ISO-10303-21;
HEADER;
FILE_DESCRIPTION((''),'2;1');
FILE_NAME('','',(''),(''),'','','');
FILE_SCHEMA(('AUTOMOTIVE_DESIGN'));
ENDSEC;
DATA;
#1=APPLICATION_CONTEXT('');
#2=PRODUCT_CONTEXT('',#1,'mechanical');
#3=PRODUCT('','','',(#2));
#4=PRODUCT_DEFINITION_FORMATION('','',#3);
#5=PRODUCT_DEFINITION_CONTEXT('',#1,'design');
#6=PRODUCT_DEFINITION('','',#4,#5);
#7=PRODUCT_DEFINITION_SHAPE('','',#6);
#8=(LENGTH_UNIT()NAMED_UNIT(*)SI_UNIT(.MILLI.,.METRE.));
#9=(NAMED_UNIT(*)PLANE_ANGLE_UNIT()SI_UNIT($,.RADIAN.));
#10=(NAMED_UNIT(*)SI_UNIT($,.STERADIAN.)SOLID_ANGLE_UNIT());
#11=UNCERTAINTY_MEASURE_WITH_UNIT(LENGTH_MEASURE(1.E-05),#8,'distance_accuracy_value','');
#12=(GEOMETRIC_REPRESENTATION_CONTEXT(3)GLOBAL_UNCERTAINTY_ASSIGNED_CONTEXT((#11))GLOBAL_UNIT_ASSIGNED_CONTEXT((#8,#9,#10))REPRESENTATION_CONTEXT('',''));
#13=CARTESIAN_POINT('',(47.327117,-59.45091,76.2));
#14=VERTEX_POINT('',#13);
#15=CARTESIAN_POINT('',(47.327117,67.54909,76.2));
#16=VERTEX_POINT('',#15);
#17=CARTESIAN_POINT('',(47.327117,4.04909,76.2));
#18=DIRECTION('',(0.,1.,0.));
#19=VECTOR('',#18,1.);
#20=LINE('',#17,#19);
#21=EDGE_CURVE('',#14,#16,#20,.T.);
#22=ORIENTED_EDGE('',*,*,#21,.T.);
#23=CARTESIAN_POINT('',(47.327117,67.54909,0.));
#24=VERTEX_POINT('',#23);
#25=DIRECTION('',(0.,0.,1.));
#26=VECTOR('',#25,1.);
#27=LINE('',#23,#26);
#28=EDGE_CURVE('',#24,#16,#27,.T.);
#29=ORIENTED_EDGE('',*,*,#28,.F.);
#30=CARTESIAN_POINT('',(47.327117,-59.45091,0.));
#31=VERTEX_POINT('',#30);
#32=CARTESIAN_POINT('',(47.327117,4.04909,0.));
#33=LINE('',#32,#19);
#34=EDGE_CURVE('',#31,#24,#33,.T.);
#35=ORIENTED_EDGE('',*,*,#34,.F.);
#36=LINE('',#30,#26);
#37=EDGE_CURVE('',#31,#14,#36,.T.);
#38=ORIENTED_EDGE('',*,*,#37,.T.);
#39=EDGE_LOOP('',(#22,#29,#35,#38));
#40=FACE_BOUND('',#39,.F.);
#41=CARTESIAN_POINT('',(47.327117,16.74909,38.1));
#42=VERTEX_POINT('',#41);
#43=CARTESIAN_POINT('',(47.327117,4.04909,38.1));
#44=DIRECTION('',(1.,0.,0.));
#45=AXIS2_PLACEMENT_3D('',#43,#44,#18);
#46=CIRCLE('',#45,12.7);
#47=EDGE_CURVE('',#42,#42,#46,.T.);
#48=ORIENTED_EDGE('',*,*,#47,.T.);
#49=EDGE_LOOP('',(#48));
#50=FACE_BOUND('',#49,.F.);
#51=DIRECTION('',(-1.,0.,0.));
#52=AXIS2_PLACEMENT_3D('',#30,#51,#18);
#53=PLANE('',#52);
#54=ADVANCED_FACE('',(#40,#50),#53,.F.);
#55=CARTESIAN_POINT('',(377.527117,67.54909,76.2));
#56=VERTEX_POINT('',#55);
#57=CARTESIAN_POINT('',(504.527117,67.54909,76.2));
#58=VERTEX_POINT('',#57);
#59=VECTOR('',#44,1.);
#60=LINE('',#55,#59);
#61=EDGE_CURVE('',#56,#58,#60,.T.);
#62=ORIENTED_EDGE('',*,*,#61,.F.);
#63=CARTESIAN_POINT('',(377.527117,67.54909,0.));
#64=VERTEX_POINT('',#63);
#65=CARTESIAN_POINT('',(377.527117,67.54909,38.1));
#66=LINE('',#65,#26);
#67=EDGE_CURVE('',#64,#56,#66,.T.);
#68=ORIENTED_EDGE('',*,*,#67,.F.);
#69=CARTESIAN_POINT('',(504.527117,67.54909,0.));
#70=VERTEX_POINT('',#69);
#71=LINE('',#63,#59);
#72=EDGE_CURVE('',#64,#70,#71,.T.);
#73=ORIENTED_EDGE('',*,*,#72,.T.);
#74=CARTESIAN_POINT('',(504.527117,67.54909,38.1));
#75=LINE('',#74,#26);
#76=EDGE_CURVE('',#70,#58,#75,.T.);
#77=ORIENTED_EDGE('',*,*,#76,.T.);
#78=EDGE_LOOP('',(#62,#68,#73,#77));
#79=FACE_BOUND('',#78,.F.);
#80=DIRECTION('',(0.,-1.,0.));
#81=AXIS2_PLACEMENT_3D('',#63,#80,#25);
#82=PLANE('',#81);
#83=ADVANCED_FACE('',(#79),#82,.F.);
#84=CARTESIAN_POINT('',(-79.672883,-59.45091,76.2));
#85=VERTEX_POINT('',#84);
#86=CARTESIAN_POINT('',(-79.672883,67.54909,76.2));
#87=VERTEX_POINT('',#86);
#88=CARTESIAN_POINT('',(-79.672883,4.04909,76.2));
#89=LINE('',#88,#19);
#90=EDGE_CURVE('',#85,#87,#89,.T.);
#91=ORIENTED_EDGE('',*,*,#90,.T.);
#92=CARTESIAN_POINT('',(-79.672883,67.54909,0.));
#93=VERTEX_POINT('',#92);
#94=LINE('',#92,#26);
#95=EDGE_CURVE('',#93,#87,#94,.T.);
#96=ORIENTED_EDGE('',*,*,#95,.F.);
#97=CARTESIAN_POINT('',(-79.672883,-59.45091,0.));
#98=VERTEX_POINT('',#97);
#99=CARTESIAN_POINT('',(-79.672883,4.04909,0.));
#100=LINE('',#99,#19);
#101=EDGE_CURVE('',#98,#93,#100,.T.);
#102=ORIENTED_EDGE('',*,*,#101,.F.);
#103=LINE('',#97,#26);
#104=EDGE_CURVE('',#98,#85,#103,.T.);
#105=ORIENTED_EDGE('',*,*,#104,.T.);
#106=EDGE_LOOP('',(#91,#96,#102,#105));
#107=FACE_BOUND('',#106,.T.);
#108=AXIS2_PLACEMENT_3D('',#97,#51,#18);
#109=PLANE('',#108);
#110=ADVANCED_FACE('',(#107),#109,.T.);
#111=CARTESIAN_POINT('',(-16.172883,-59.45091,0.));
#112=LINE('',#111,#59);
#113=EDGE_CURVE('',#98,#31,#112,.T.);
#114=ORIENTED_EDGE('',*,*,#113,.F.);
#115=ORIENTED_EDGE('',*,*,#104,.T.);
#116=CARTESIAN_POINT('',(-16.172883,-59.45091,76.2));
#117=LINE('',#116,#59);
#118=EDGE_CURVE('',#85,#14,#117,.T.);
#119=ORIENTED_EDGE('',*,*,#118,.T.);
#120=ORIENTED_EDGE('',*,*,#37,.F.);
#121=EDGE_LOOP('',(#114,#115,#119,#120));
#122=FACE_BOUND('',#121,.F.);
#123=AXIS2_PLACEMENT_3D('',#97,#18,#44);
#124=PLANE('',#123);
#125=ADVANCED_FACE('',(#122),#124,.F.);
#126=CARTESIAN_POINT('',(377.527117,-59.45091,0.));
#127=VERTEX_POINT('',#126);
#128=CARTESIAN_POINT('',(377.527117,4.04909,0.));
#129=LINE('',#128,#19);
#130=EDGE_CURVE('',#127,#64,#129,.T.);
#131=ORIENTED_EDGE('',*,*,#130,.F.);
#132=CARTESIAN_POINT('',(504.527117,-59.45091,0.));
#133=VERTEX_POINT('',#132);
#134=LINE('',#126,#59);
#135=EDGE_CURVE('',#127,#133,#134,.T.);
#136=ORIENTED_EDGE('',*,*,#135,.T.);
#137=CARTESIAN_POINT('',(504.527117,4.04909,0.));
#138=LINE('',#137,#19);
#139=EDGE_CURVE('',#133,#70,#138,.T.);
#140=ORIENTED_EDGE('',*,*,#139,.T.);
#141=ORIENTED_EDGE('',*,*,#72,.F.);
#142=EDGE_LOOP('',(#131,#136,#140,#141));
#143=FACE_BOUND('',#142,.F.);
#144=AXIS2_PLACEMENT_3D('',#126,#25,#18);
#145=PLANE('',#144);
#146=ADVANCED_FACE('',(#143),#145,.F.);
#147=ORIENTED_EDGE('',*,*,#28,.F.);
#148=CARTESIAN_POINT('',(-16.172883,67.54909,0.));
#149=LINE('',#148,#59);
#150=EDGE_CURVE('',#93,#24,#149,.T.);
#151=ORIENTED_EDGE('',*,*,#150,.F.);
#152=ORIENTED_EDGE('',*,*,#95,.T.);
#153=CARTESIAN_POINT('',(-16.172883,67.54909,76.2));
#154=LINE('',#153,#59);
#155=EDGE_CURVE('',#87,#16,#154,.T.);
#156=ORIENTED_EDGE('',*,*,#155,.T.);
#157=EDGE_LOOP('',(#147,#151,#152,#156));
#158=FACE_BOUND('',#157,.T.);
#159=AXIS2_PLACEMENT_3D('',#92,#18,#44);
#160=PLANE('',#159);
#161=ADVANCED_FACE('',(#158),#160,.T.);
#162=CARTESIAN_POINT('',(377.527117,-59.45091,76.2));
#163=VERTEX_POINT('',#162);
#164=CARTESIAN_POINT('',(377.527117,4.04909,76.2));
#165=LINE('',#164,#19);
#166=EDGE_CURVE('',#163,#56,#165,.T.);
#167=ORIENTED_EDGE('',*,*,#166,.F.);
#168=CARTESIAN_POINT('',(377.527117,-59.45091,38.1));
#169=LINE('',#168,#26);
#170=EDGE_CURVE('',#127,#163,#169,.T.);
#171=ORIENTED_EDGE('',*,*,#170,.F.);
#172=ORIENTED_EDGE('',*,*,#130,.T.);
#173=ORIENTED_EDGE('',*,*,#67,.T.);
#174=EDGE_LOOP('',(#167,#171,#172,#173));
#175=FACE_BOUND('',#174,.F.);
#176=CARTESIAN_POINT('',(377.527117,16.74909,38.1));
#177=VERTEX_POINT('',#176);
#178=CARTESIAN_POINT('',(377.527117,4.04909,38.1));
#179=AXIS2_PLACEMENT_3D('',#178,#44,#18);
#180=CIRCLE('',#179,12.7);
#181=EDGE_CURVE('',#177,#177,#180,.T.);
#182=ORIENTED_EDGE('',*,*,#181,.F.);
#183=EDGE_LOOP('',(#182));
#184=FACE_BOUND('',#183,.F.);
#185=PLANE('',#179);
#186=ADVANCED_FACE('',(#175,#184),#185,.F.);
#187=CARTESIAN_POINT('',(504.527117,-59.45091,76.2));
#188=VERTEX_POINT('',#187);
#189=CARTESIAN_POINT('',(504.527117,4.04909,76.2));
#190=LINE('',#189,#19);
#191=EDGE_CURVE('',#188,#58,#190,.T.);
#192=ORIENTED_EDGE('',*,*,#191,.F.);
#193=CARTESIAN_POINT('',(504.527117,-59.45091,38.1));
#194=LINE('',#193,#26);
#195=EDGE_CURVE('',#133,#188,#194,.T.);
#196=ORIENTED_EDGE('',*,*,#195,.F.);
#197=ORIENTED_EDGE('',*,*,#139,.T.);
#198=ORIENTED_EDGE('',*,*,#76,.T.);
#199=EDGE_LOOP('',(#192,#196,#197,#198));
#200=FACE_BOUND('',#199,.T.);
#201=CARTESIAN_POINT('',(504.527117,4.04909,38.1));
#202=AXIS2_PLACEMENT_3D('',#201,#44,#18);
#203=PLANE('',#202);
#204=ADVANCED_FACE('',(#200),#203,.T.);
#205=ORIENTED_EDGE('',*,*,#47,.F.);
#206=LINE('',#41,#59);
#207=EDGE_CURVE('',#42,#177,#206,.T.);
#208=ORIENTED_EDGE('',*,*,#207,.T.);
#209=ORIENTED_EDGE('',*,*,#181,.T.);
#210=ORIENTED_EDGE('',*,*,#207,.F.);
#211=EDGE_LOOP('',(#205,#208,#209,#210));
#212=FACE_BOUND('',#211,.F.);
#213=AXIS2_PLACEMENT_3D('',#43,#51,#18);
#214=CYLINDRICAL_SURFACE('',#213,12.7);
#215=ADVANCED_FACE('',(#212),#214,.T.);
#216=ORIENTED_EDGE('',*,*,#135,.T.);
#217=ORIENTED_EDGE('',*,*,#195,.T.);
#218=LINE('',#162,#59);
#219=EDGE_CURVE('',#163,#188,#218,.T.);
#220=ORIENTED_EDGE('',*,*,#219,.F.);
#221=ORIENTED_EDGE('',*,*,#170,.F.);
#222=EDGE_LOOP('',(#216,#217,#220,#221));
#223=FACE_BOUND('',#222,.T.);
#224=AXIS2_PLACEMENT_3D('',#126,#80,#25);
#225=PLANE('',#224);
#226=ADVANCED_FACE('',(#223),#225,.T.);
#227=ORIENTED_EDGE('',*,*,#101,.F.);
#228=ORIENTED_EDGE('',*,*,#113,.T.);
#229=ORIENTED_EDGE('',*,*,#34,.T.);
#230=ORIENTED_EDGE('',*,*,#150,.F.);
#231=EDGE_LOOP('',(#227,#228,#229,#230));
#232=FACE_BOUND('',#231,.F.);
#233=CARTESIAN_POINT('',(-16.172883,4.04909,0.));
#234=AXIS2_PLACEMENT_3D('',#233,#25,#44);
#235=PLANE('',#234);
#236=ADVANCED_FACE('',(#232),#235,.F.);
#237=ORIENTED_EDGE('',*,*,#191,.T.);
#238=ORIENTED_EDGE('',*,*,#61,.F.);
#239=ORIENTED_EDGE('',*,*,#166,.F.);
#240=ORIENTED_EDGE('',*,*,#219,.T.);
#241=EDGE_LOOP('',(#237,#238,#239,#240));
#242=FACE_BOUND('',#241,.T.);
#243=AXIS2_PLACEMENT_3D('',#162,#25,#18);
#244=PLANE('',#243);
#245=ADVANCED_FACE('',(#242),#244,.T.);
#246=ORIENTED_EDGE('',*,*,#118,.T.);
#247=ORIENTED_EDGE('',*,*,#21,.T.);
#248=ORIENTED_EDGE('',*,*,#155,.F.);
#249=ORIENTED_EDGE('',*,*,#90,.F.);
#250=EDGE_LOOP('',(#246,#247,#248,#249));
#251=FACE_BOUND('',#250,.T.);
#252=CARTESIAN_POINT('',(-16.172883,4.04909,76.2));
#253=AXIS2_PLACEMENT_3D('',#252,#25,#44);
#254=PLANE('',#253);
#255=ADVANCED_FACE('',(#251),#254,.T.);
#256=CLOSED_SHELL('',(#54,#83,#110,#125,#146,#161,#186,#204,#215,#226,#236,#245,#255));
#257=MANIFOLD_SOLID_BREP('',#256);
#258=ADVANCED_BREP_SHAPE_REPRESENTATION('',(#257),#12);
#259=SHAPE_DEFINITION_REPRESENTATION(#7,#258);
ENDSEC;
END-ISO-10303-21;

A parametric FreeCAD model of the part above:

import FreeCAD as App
import Part
import Sketcher
from FreeCAD import Vector
Q = App.Units.Quantity


def add_polygon(sketch, points):
    """Adds a closed chain of lines whose ends are joined by coincident constraints."""
    first, n = sketch.GeometryCount, len(points)
    for a, b in zip(points, points[1:] + points[:1]):
        sketch.addGeometry(Part.LineSegment(App.Vector(*a, 0), App.Vector(*b, 0)), False)
    for i in range(n):
        sketch.addConstraint(Sketcher.Constraint("Coincident", first + i, 2, first + (i + 1) % n, 1))

doc = App.newDocument("Part")
body = doc.addObject("PartDesign::Body", "Body")

# Sketch on XY plane
sketch1 = body.newObject("Sketcher::SketchObject", "Sketch")
sketch1.AttachmentSupport = (doc.getObject("XY_Plane"), [""])
sketch1.MapMode = "FlatFace"
add_polygon(sketch1, [(-80, 68), (-80, -59), (47, -59), (47, 68)])  # lines 0-3
sketch1.addConstraint(Sketcher.Constraint("Vertical", 0))
sketch1.addConstraint(Sketcher.Constraint("Horizontal", 1))
sketch1.addConstraint(Sketcher.Constraint("Vertical", 2))
sketch1.addConstraint(Sketcher.Constraint("Horizontal", 3))
sketch1.addConstraint(Sketcher.Constraint("Equal", 3, 0))
sketch1.addConstraint(Sketcher.Constraint("DistanceX", 1, 1, 1, 2, Q("5 in")))
sketch1.addConstraint(Sketcher.Constraint("DistanceY", 0, 2, -1, 1, 59.45091))
sketch1.addConstraint(Sketcher.Constraint("DistanceX", 0, 2, -1, 1, 79.672883))
pad1 = body.newObject("PartDesign::Pad", "Pad")
pad1.Profile = sketch1
pad1.Length = Q("3 in")

# Sketch on YZ plane
sketch2 = body.newObject("Sketcher::SketchObject", "Sketch001")
sketch2.AttachmentSupport = (doc.getObject("YZ_Plane"), [""])
sketch2.MapMode = "FlatFace"
sketch2.AttachmentOffset = App.Placement(Vector(0, 0, 47.327117), App.Rotation())
sketch2.addGeometry(Part.Circle(Vector(4, 38, 0), Vector(0, 0, 1), 13), False)
sketch2.addConstraint(Sketcher.Constraint("Diameter", 0, Q("1 in")))
sketch2.addConstraint(Sketcher.Constraint("DistanceY", -1, 1, 0, 3, Q("1.5 in")))
sketch2.addConstraint(Sketcher.Constraint("DistanceX", -1, 1, 0, 3, 4.04909))
pad2 = body.newObject("PartDesign::Pad", "Pad001")
pad2.Profile = sketch2
pad2.Length = Q("13 in")

# Sketch on YZ plane
sketch3 = body.newObject("Sketcher::SketchObject", "Sketch002")
sketch3.AttachmentSupport = (doc.getObject("YZ_Plane"), [""])
sketch3.MapMode = "FlatFace"
sketch3.AttachmentOffset = App.Placement(Vector(0, 0, 377.527117), App.Rotation())
add_polygon(sketch3, [(-59, 76), (-59, 0), (68, 0), (68, 76)])  # lines 0-3
sketch3.addConstraint(Sketcher.Constraint("Vertical", 0))
sketch3.addConstraint(Sketcher.Constraint("Horizontal", 1))
sketch3.addConstraint(Sketcher.Constraint("Vertical", 2))
sketch3.addConstraint(Sketcher.Constraint("Horizontal", 3))
sketch3.addConstraint(Sketcher.Constraint("PointOnObject", 0, 2, -1))
sketch3.addConstraint(Sketcher.Constraint("DistanceX", 1, 1, 1, 2, Q("5 in")))
sketch3.addConstraint(Sketcher.Constraint("DistanceY", 0, 2, 0, 1, Q("3 in")))
sketch3.addConstraint(Sketcher.Constraint("DistanceX", 0, 2, -1, 1, 59.45091))
pad3 = body.newObject("PartDesign::Pad", "Pad002")
pad3.Profile = sketch3
pad3.Length = Q("5 in")

doc.recompute()
